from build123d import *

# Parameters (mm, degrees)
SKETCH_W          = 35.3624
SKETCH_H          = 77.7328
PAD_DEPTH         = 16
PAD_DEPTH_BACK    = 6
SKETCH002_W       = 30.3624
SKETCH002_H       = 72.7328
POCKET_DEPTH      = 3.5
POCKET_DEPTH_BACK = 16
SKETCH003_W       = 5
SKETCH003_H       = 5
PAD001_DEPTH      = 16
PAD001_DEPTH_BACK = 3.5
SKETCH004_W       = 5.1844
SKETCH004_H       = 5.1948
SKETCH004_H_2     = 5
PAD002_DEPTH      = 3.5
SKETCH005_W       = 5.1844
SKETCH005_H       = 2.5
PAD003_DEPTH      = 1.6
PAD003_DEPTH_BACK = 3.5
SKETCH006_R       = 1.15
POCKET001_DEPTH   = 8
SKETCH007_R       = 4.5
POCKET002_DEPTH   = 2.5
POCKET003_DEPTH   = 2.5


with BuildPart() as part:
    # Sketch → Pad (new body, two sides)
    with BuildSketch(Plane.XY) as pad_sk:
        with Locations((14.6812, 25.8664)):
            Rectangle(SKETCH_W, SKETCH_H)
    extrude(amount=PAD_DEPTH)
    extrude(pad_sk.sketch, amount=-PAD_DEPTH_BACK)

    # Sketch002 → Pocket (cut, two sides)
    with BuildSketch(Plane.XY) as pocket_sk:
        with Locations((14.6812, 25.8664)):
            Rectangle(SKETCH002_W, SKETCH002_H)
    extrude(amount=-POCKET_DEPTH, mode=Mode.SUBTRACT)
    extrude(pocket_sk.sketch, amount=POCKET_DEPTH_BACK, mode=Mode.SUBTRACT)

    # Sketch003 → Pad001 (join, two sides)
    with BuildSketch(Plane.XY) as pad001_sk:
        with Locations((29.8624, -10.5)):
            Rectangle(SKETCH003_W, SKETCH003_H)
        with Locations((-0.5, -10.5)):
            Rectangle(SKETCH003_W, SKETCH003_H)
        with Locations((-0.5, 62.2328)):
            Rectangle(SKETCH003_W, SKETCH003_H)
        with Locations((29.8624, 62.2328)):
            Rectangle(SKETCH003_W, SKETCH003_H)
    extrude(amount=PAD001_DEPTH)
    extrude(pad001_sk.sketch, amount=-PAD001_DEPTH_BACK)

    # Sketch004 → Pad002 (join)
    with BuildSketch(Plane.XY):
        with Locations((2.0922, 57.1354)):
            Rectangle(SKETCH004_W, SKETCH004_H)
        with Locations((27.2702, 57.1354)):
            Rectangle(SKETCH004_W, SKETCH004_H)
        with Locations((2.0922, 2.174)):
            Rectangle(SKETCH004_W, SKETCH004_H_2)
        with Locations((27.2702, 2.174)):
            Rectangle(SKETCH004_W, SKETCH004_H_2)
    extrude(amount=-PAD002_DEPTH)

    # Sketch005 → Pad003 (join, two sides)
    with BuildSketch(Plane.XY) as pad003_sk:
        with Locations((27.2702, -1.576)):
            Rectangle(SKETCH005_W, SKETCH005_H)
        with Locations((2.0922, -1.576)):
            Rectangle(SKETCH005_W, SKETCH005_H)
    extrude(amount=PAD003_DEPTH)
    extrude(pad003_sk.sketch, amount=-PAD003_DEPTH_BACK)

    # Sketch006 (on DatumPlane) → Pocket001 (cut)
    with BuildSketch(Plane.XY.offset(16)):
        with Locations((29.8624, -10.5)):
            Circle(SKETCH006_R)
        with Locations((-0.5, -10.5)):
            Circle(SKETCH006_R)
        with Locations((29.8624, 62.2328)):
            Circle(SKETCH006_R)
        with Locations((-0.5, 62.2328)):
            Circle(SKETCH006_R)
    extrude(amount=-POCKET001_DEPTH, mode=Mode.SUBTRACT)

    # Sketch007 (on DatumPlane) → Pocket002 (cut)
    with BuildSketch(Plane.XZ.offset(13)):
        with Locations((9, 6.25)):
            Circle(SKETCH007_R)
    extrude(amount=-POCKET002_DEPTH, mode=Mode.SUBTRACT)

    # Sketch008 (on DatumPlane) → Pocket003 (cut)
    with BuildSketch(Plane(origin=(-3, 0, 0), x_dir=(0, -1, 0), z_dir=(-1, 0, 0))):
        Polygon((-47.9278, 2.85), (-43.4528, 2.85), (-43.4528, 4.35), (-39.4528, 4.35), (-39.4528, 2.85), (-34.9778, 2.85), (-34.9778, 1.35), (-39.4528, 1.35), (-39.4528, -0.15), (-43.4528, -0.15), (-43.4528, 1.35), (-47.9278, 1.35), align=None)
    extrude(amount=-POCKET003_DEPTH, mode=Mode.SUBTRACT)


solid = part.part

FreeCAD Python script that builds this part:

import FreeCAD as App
import Part
import Sketcher


def add_polygon(sketch, points):
    """Adds a closed chain of lines whose ends are joined by coincident constraints."""
    first, n = sketch.GeometryCount, len(points)
    for a, b in zip(points, points[1:] + points[:1]):
        sketch.addGeometry(Part.LineSegment(App.Vector(*a, 0), App.Vector(*b, 0)), False)
    for i in range(n):
        sketch.addConstraint(Sketcher.Constraint("Coincident", first + i, 2, first + (i + 1) % n, 1))

doc = App.newDocument("Part")
body = doc.addObject("PartDesign::Body", "Body")

# Sketch on XY plane
sketch1 = body.newObject("Sketcher::SketchObject", "Sketch")
sketch1.AttachmentSupport = (doc.getObject("XY_Plane"), [""])
sketch1.MapMode = "FlatFace"
add_polygon(sketch1, [(-3, 65), (-3, -13), (32, -13), (32, 65)])  # lines 0-3
sketch1.addConstraint(Sketcher.Constraint("Vertical", 0))
sketch1.addConstraint(Sketcher.Constraint("Horizontal", 1))
sketch1.addConstraint(Sketcher.Constraint("Vertical", 2))
sketch1.addConstraint(Sketcher.Constraint("Horizontal", 3))
sketch1.addConstraint(Sketcher.Constraint("DistanceX", 0, 2, -1, 1, 3.0))
sketch1.addConstraint(Sketcher.Constraint("DistanceY", 0, 2, -1, 1, 13.0))
sketch1.addConstraint(Sketcher.Constraint("DistanceX", 1, 1, 1, 2, 35.3624))
sketch1.addConstraint(Sketcher.Constraint("DistanceY", 0, 2, 0, 1, 77.7328))
pad1 = body.newObject("PartDesign::Pad", "Pad")
pad1.Profile = sketch1
pad1.Type = "TwoLengths"
pad1.Length = 16
pad1.Length2 = 6

# Sketch on XY plane
sketch2 = body.newObject("Sketcher::SketchObject", "Sketch001")
sketch2.AttachmentSupport = (doc.getObject("XY_Plane"), [""])
sketch2.MapMode = "FlatFace"
add_polygon(sketch2, [(0, 62), (0, -10), (30, -10), (30, 62)])  # lines 0-3
sketch2.addConstraint(Sketcher.Constraint("Vertical", 0))
sketch2.addConstraint(Sketcher.Constraint("Horizontal", 1))
sketch2.addConstraint(Sketcher.Constraint("Vertical", 2))
sketch2.addConstraint(Sketcher.Constraint("Horizontal", 3))
sketch2.addConstraint(Sketcher.Constraint("DistanceX", 0, 2, -1, 1, 0.5))
sketch2.addConstraint(Sketcher.Constraint("DistanceY", 0, 2, -1, 1, 10.5))
sketch2.addConstraint(Sketcher.Constraint("DistanceX", 1, 1, 1, 2, 30.3624))
sketch2.addConstraint(Sketcher.Constraint("DistanceY", 0, 2, 0, 1, 72.7328))
pocket1 = body.newObject("PartDesign::Pocket", "Pocket")
pocket1.Profile = sketch2
pocket1.Type = "TwoLengths"
pocket1.Length = 3.5
pocket1.Length2 = 16

# Sketch on XY plane
sketch3 = body.newObject("Sketcher::SketchObject", "Sketch002")
sketch3.AttachmentSupport = (doc.getObject("XY_Plane"), [""])
sketch3.MapMode = "FlatFace"
add_polygon(sketch3, [(27, -8), (27, -13), (32, -13), (32, -8)])  # lines 0-3
add_polygon(sketch3, [(-3, -8), (-3, -13), (2, -13), (2, -8)])  # lines 4-7
add_polygon(sketch3, [(-3, 65), (-3, 60), (2, 60), (2, 65)])  # lines 8-11
add_polygon(sketch3, [(27, 65), (27, 60), (32, 60), (32, 65)])  # lines 12-15
sketch3.addConstraint(Sketcher.Constraint("Vertical", 0))
sketch3.addConstraint(Sketcher.Constraint("Horizontal", 1))
sketch3.addConstraint(Sketcher.Constraint("Vertical", 2))
sketch3.addConstraint(Sketcher.Constraint("Horizontal", 3))
sketch3.addConstraint(Sketcher.Constraint("Vertical", 4))
sketch3.addConstraint(Sketcher.Constraint("Horizontal", 5))
sketch3.addConstraint(Sketcher.Constraint("Vertical", 6))
sketch3.addConstraint(Sketcher.Constraint("Horizontal", 7))
sketch3.addConstraint(Sketcher.Constraint("Vertical", 8))
sketch3.addConstraint(Sketcher.Constraint("Horizontal", 9))
sketch3.addConstraint(Sketcher.Constraint("Vertical", 10))
sketch3.addConstraint(Sketcher.Constraint("Horizontal", 11))
sketch3.addConstraint(Sketcher.Constraint("Vertical", 12))
sketch3.addConstraint(Sketcher.Constraint("Horizontal", 13))
sketch3.addConstraint(Sketcher.Constraint("Vertical", 14))
sketch3.addConstraint(Sketcher.Constraint("Horizontal", 15))
sketch3.addConstraint(Sketcher.Constraint("Horizontal", 1, 2, 4, 2))
sketch3.addConstraint(Sketcher.Constraint("Horizontal", 3, 2, 6, 2))
sketch3.addConstraint(Sketcher.Constraint("Horizontal", 9, 2, 12, 2))
sketch3.addConstraint(Sketcher.Constraint("Horizontal", 11, 2, 14, 2))
sketch3.addConstraint(Sketcher.Constraint("Vertical", 7, 2, 8, 2))
sketch3.addConstraint(Sketcher.Constraint("Vertical", 6, 2, 9, 2))
sketch3.addConstraint(Sketcher.Constraint("Vertical", 3, 2, 12, 2))
sketch3.addConstraint(Sketcher.Constraint("Vertical", 2, 2, 13, 2))
sketch3.addConstraint(Sketcher.Constraint("Equal", 3, 5))
sketch3.addConstraint(Sketcher.Constraint("Equal", 15, 0))
sketch3.addConstraint(Sketcher.Constraint("Equal", 6, 8))
sketch3.addConstraint(Sketcher.Constraint("DistanceX", 1, 1, 1, 2, 5.0))
sketch3.addConstraint(Sketcher.Constraint("DistanceY", 0, 2, -1, 1, 13.0))
sketch3.addConstraint(Sketcher.Constraint("DistanceX", 4, 2, -1, 1, 3.0))
sketch3.addConstraint(Sketcher.Constraint("DistanceX", -1, 1, 0, 2, 27.3624))
sketch3.addConstraint(Sketcher.Constraint("DistanceY", -1, 1, 8, 2, 59.7328))
pad2 = body.newObject("PartDesign::Pad", "Pad001")
pad2.Profile = sketch3
pad2.Type = "TwoLengths"
pad2.Length = 16
pad2.Length2 = 3.5

# Sketch on XY plane
sketch4 = body.newObject("Sketcher::SketchObject", "Sketch003")
sketch4.AttachmentSupport = (doc.getObject("XY_Plane"), [""])
sketch4.MapMode = "FlatFace"
add_polygon(sketch4, [(0, 60), (0, 55), (5, 55), (5, 60)])  # lines 0-3
add_polygon(sketch4, [(25, 60), (25, 55), (30, 55), (30, 60)])  # lines 4-7
add_polygon(sketch4, [(0, 5), (0, 0), (5, 0), (5, 5)])  # lines 8-11
add_polygon(sketch4, [(25, 5), (25, 0), (30, 0), (30, 5)])  # lines 12-15
sketch4.addConstraint(Sketcher.Constraint("Vertical", 0))
sketch4.addConstraint(Sketcher.Constraint("Horizontal", 1))
sketch4.addConstraint(Sketcher.Constraint("Vertical", 2))
sketch4.addConstraint(Sketcher.Constraint("Horizontal", 3))
sketch4.addConstraint(Sketcher.Constraint("Vertical", 4))
sketch4.addConstraint(Sketcher.Constraint("Horizontal", 5))
sketch4.addConstraint(Sketcher.Constraint("Vertical", 6))
sketch4.addConstraint(Sketcher.Constraint("Horizontal", 7))
sketch4.addConstraint(Sketcher.Constraint("Vertical", 8))
sketch4.addConstraint(Sketcher.Constraint("Horizontal", 9))
sketch4.addConstraint(Sketcher.Constraint("Vertical", 10))
sketch4.addConstraint(Sketcher.Constraint("Horizontal", 11))
sketch4.addConstraint(Sketcher.Constraint("Vertical", 12))
sketch4.addConstraint(Sketcher.Constraint("Horizontal", 13))
sketch4.addConstraint(Sketcher.Constraint("Vertical", 14))
sketch4.addConstraint(Sketcher.Constraint("Horizontal", 15))
sketch4.addConstraint(Sketcher.Constraint("Horizontal", 1, 2, 4, 2))
sketch4.addConstraint(Sketcher.Constraint("Horizontal", 3, 2, 6, 2))
sketch4.addConstraint(Sketcher.Constraint("Horizontal", 9, 2, 12, 2))
sketch4.addConstraint(Sketcher.Constraint("Horizontal", 11, 2, 14, 2))
sketch4.addConstraint(Sketcher.Constraint("Vertical", 3, 2, 8, 2))
sketch4.addConstraint(Sketcher.Constraint("Vertical", 2, 2, 9, 2))
sketch4.addConstraint(Sketcher.Constraint("Vertical", 7, 2, 12, 2))
sketch4.addConstraint(Sketcher.Constraint("Vertical", 6, 2, 13, 2))
sketch4.addConstraint(Sketcher.Constraint("Equal", 3, 5))
sketch4.addConstraint(Sketcher.Constraint("DistanceY", 8, 2, 8, 1, 5.0))
sketch4.addConstraint(Sketcher.Constraint("DistanceX", 0, 2, -1, 1, 0.5))
sketch4.addConstraint(Sketcher.Constraint("DistanceX", 1, 1, 1, 2, 5.1844))
sketch4.addConstraint(Sketcher.Constraint("DistanceY", 0, 2, 0, 1, 5.1948))
sketch4.addConstraint(Sketcher.Constraint("DistanceY", -1, 1, 0, 2, 54.538))
sketch4.addConstraint(Sketcher.Constraint("DistanceX", -1, 1, 4, 2, 24.678))
sketch4.addConstraint(Sketcher.Constraint("DistanceY", 8, 2, -1, 1, 0.326))
pad3 = body.newObject("PartDesign::Pad", "Pad002")
pad3.Profile = sketch4
pad3.Length = 3.5
pad3.Reversed = True

# Sketch on XY plane
sketch5 = body.newObject("Sketcher::SketchObject", "Sketch004")
sketch5.AttachmentSupport = (doc.getObject("XY_Plane"), [""])
sketch5.MapMode = "FlatFace"
add_polygon(sketch5, [(24.7, -0.3), (24.7, -2.8), (29.9, -2.8), (29.9, -0.3)])  # lines 0-3
add_polygon(sketch5, [(-0.5, -0.3), (-0.5, -2.8), (4.7, -2.8), (4.7, -0.3)])  # lines 4-7
sketch5.addConstraint(Sketcher.Constraint("Vertical", 0))
sketch5.addConstraint(Sketcher.Constraint("Horizontal", 1))
sketch5.addConstraint(Sketcher.Constraint("Vertical", 2))
sketch5.addConstraint(Sketcher.Constraint("Horizontal", 3))
sketch5.addConstraint(Sketcher.Constraint("Vertical", 4))
sketch5.addConstraint(Sketcher.Constraint("Horizontal", 5))
sketch5.addConstraint(Sketcher.Constraint("Vertical", 6))
sketch5.addConstraint(Sketcher.Constraint("Horizontal", 7))
sketch5.addConstraint(Sketcher.Constraint("Horizontal", 1, 2, 4, 2))
sketch5.addConstraint(Sketcher.Constraint("Horizontal", 3, 2, 6, 2))
sketch5.addConstraint(Sketcher.Constraint("Equal", 3, 5))
sketch5.addConstraint(Sketcher.Constraint("DistanceY", 0, 2, 0, 1, 2.5))
sketch5.addConstraint(Sketcher.Constraint("DistanceX", 4, 2, -1, 1, 0.5))
sketch5.addConstraint(Sketcher.Constraint("DistanceX", 1, 1, 1, 2, 5.1844))
sketch5.addConstraint(Sketcher.Constraint("DistanceX", -1, 1, 0, 2, 24.678))
sketch5.addConstraint(Sketcher.Constraint("DistanceY", 0, 2, -1, 1, 2.826))
pad4 = body.newObject("PartDesign::Pad", "Pad003")
pad4.Profile = sketch5
pad4.Type = "TwoLengths"
pad4.Length = 1.6
pad4.Length2 = 3.5

# Sketch on XY plane
sketch6 = body.newObject("Sketcher::SketchObject", "Sketch005")
sketch6.AttachmentSupport = (doc.getObject("XY_Plane"), [""])
sketch6.MapMode = "FlatFace"
sketch6.AttachmentOffset = App.Placement(App.Vector(0, 0, 16), App.Rotation())
sketch6.addGeometry(Part.Circle(App.Vector(29.9, -10.5, 0), App.Vector(0, 0, 1), 1.1), False)
sketch6.addGeometry(Part.Circle(App.Vector(-0.5, -10.5, 0), App.Vector(0, 0, 1), 1.1), False)
sketch6.addGeometry(Part.Circle(App.Vector(29.9, 62.2, 0), App.Vector(0, 0, 1), 1.1), False)
sketch6.addGeometry(Part.Circle(App.Vector(-0.5, 62.2, 0), App.Vector(0, 0, 1), 1.1), False)
sketch6.addConstraint(Sketcher.Constraint("Equal", 0, 1))
sketch6.addConstraint(Sketcher.Constraint("Equal", 1, 2))
sketch6.addConstraint(Sketcher.Constraint("Equal", 2, 3))
sketch6.addConstraint(Sketcher.Constraint("Horizontal", 0, 3, 1, 3))
sketch6.addConstraint(Sketcher.Constraint("Horizontal", 2, 3, 3, 3))
sketch6.addConstraint(Sketcher.Constraint("Vertical", 0, 3, 2, 3))
sketch6.addConstraint(Sketcher.Constraint("Vertical", 1, 3, 3, 3))
sketch6.addConstraint(Sketcher.Constraint("Diameter", 0, 2.3))
sketch6.addConstraint(Sketcher.Constraint("DistanceY", 0, 3, -1, 1, 10.5))
sketch6.addConstraint(Sketcher.Constraint("DistanceX", 1, 3, -1, 1, 0.5))
sketch6.addConstraint(Sketcher.Constraint("DistanceX", -1, 1, 0, 3, 29.8624))
sketch6.addConstraint(Sketcher.Constraint("DistanceY", -1, 1, 2, 3, 62.2328))
pocket2 = body.newObject("PartDesign::Pocket", "Pocket001")
pocket2.Profile = sketch6
pocket2.Length = 8

# Sketch on XZ plane
sketch7 = body.newObject("Sketcher::SketchObject", "Sketch006")
sketch7.AttachmentSupport = (doc.getObject("XZ_Plane"), [""])
sketch7.MapMode = "FlatFace"
sketch7.AttachmentOffset = App.Placement(App.Vector(0, 0, 13), App.Rotation())
sketch7.addGeometry(Part.Circle(App.Vector(9, 6.2, 0), App.Vector(0, 0, 1), 4.5), False)
sketch7.addConstraint(Sketcher.Constraint("Diameter", 0, 9.0))
sketch7.addConstraint(Sketcher.Constraint("DistanceX", -1, 1, 0, 3, 9.0))
sketch7.addConstraint(Sketcher.Constraint("DistanceY", -1, 1, 0, 3, 6.25))
pocket3 = body.newObject("PartDesign::Pocket", "Pocket002")
pocket3.Profile = sketch7
pocket3.Length = 2.5

# Sketch on YZ plane
sketch8 = body.newObject("Sketcher::SketchObject", "Sketch007")
sketch8.AttachmentSupport = (doc.getObject("YZ_Plane"), [""])
sketch8.MapMode = "FlatFace"
sketch8.AttachmentOffset = App.Placement(App.Vector(0, 0, -3), App.Rotation())
add_polygon(sketch8, [(43.5, 2.9), (47.9, 2.9), (47.9, 1.4), (43.5, 1.4), (43.5, -0.1), (39.5, -0.1), (39.5, 1.4), (35, 1.4), (35, 2.9), (39.5, 2.9), (39.5, 4.3), (43.5, 4.3)])  # lines 0-11
sketch8.addConstraint(Sketcher.Constraint("Horizontal", 0))
sketch8.addConstraint(Sketcher.Constraint("Vertical", 1))
sketch8.addConstraint(Sketcher.Constraint("Horizontal", 2))
sketch8.addConstraint(Sketcher.Constraint("Vertical", 3))
sketch8.addConstraint(Sketcher.Constraint("Horizontal", 4))
sketch8.addConstraint(Sketcher.Constraint("Vertical", 5))
sketch8.addConstraint(Sketcher.Constraint("Horizontal", 6))
sketch8.addConstraint(Sketcher.Constraint("Vertical", 7))
sketch8.addConstraint(Sketcher.Constraint("Horizontal", 8))
sketch8.addConstraint(Sketcher.Constraint("Vertical", 9))
sketch8.addConstraint(Sketcher.Constraint("Horizontal", 10))
sketch8.addConstraint(Sketcher.Constraint("Vertical", 11))
sketch8.addConstraint(Sketcher.Constraint("Horizontal", 2, 2, 5, 2))
sketch8.addConstraint(Sketcher.Constraint("Horizontal", 0, 2, 7, 2))
sketch8.addConstraint(Sketcher.Constraint("Vertical", 5, 2, 8, 2))
sketch8.addConstraint(Sketcher.Constraint("Vertical", 3, 2, 10, 2))
sketch8.addConstraint(Sketcher.Constraint("Equal", 2, 6))
sketch8.addConstraint(Sketcher.Constraint("Equal", 1, 3))
sketch8.addConstraint(Sketcher.Constraint("Equal", 7, 9))
sketch8.addConstraint(Sketcher.Constraint("DistanceX", 4, 2, 4, 1, 4.0))
sketch8.addConstraint(Sketcher.Constraint("DistanceY", 1, 2, 1, 1, 1.5))
sketch8.addConstraint(Sketcher.Constraint("DistanceX", 0, 1, 0, 2, 4.475))
sketch8.addConstraint(Sketcher.Constraint("DistanceY", -1, 1, 0, 2, 2.85))
sketch8.addConstraint(Sketcher.Constraint("DistanceX", -1, 1, 0, 2, 47.9278))
pocket4 = body.newObject("PartDesign::Pocket", "Pocket003")
pocket4.Profile = sketch8
pocket4.Length = 2.5
pocket4.Reversed = True

doc.recompute()
